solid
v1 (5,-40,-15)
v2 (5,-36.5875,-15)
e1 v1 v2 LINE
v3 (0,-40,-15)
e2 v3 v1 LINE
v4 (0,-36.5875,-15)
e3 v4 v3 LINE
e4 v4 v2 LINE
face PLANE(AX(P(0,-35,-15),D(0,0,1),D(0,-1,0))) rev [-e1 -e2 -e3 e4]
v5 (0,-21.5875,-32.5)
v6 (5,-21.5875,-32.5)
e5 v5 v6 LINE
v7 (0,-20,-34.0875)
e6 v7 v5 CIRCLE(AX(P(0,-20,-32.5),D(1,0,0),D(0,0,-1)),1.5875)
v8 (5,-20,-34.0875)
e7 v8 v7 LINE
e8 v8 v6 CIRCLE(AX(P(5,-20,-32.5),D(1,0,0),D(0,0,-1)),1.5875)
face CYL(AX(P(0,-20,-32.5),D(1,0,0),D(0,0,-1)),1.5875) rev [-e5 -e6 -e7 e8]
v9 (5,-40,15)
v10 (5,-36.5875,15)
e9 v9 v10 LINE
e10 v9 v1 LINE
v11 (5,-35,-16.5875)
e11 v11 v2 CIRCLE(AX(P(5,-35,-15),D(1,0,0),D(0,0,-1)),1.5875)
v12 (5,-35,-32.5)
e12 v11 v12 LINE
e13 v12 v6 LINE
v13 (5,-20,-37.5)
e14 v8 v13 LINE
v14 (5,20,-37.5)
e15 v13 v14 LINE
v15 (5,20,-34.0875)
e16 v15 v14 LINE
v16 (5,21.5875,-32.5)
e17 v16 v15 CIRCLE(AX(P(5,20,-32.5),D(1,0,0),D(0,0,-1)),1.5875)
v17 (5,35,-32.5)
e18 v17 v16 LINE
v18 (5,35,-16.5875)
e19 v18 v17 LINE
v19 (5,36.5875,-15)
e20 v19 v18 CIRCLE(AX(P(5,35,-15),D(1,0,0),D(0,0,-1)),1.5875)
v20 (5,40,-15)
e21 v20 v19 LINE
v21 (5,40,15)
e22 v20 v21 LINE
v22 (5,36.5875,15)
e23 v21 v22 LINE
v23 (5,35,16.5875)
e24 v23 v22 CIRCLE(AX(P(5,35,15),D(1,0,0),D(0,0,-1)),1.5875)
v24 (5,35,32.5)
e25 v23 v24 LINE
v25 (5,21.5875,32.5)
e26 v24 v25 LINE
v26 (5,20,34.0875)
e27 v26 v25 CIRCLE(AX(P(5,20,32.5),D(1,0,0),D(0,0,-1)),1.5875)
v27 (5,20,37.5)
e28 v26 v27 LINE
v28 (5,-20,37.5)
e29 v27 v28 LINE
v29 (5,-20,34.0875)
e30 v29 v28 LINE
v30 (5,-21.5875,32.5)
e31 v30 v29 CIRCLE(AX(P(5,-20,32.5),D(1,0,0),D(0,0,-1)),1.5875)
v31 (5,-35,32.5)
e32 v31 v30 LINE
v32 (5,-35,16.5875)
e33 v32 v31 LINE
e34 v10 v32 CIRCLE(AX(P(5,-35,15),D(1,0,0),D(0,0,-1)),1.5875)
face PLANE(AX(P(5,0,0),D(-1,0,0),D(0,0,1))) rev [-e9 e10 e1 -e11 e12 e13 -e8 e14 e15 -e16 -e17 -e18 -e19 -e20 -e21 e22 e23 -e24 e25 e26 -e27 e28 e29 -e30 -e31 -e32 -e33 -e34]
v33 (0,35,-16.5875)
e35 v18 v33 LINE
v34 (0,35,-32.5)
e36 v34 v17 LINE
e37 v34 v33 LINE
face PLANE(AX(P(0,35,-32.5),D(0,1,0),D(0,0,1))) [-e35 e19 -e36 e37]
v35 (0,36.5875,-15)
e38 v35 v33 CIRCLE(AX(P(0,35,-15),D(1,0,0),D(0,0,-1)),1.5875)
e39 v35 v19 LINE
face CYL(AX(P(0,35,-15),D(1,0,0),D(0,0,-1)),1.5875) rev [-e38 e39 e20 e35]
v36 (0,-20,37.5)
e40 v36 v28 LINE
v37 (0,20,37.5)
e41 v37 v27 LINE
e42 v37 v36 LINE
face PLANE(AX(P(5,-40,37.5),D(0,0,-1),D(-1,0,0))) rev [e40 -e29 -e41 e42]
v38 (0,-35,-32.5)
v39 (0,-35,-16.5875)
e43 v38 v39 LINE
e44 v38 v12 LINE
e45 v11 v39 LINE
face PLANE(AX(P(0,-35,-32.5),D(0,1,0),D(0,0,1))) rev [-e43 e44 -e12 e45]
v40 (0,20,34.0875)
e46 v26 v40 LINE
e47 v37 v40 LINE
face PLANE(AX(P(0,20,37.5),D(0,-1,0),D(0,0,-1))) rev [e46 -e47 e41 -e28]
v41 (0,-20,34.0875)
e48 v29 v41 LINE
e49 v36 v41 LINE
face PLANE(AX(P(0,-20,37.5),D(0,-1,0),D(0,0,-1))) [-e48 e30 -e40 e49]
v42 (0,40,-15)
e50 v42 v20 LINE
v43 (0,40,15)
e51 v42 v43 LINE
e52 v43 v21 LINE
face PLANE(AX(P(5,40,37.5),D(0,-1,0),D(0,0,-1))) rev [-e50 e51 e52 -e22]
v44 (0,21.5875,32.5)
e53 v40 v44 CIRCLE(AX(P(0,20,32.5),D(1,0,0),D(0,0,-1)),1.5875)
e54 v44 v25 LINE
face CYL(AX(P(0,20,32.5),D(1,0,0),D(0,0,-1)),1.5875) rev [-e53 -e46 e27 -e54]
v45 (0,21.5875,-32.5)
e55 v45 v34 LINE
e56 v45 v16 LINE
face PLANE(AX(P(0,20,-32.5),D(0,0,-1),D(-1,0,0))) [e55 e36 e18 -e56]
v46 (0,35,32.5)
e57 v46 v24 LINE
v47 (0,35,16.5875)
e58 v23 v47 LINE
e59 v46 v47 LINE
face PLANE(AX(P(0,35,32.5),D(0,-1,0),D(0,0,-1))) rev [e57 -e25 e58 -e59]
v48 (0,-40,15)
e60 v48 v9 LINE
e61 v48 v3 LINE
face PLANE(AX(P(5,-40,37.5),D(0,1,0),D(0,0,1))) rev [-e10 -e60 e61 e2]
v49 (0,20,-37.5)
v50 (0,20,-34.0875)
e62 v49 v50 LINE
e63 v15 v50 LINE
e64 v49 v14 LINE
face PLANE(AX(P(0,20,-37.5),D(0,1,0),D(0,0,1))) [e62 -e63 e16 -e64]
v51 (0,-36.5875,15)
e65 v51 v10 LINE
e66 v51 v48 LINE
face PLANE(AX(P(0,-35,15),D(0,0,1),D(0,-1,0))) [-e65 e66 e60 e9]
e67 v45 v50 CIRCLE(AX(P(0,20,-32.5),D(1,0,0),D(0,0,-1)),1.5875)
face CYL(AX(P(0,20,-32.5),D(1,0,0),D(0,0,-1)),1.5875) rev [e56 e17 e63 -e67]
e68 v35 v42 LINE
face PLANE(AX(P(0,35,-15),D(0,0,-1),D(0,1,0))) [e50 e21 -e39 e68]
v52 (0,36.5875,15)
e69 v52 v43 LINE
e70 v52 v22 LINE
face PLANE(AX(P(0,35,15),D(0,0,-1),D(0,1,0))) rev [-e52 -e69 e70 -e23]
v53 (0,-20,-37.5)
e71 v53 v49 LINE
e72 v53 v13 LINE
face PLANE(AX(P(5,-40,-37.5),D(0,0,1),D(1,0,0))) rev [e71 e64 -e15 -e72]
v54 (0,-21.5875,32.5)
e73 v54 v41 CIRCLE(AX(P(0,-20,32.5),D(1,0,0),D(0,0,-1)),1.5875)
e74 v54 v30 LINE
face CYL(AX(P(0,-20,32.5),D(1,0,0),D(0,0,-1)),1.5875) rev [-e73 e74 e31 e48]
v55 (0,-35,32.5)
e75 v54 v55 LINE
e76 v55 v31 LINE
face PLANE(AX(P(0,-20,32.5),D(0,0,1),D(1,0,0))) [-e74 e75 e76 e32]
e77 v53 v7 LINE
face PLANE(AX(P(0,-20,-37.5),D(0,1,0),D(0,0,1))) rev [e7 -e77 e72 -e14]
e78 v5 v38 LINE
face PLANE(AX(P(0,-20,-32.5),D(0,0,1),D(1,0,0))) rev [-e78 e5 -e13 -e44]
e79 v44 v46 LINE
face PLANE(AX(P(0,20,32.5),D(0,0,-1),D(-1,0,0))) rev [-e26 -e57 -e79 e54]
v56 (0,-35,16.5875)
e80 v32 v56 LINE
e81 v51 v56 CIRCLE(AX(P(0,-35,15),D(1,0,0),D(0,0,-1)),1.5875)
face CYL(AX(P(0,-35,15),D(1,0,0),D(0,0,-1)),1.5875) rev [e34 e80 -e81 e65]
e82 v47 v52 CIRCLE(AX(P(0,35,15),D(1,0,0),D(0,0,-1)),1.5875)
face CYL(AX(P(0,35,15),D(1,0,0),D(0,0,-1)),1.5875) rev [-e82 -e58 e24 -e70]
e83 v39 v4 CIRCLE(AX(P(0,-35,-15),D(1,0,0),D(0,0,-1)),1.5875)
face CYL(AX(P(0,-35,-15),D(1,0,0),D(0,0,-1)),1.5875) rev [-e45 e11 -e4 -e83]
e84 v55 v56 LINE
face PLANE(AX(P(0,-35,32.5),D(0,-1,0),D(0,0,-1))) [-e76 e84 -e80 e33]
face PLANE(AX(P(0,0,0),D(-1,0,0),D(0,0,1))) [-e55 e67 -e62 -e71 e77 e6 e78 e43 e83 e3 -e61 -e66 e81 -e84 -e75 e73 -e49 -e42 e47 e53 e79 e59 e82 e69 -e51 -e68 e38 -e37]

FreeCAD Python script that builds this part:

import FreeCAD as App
import Part
import Sketcher

V = App.Vector


def add_polygon(sketch, points):
    """Adds a closed chain of lines whose ends are joined by coincident constraints."""
    first, n = sketch.GeometryCount, len(points)
    for a, b in zip(points, points[1:] + points[:1]):
        sketch.addGeometry(Part.LineSegment(App.Vector(*a, 0), App.Vector(*b, 0)), False)
    for i in range(n):
        sketch.addConstraint(Sketcher.Constraint("Coincident", first + i, 2, first + (i + 1) % n, 1))

doc = App.newDocument("Part")
body = doc.addObject("PartDesign::Body", "Body")

sketch1 = body.newObject("Sketcher::SketchObject", "Sketch")
sketch1.AttachmentSupport = (doc.getObject("YZ_Plane"), [""])
sketch1.MapMode = "FlatFace"
add_polygon(sketch1, [(40, 38), (-40, 38), (-40, -38), (40, -38)])
sketch1.addConstraint([
    Sketcher.Constraint("Horizontal", 0),
    Sketcher.Constraint("Vertical", 1),
    Sketcher.Constraint("Horizontal", 2),
    Sketcher.Constraint("Vertical", 3),
    Sketcher.Constraint("Symmetric", 0, 2, 2, 2, -1, 1),
    Sketcher.Constraint("DistanceX", 0, 2, 0, 1, 80.0),
    Sketcher.Constraint("DistanceY", 1, 2, 1, 1, 75.0),
])
pad1 = body.newObject("PartDesign::Pad", "Pad")
pad1.Profile = sketch1
pad1.Length = 5

sketch2 = body.newObject("Sketcher::SketchObject", "Sketch001")
sketch2.AttachmentSupport = (doc.getObject("YZ_Plane"), [""])
sketch2.MapMode = "FlatFace"
sketch2.AttachmentOffset = App.Placement(V(0, 0, -1), App.Rotation())
add_polygon(sketch2, [(20, 38), (20, 32), (35, 32), (35, 15), (40, 15), (40, 38)])
sketch2.addConstraint([
    Sketcher.Constraint("Vertical", 0),
    Sketcher.Constraint("Horizontal", 1),
    Sketcher.Constraint("Vertical", 2),
    Sketcher.Constraint("Horizontal", 3),
    Sketcher.Constraint("Vertical", 4),
    Sketcher.Constraint("Horizontal", 5),
    Sketcher.Constraint("Equal", 3, 0),
    Sketcher.Constraint("DistanceX", 1, 1, 1, 2, 15.0),
    Sketcher.Constraint("DistanceX", 3, 1, 3, 2, 5.0),
    Sketcher.Constraint("DistanceY", 2, 2, 2, 1, 17.5),
    Sketcher.Constraint("DistanceX", -1, 1, 0, 2, 20.0),
    Sketcher.Constraint("DistanceY", -1, 1, 2, 2, 15.0),
])
pocket1 = body.newObject("PartDesign::Pocket", "Pocket")
pocket1.Profile = sketch2
pocket1.Length = 7
pocket1.Reversed = True
doc.recompute()

mirrored = body.newObject("PartDesign::Mirrored", "Mirrored")
mirrored.Originals = [pocket1]
mirrored.MirrorPlane = (doc.getObject("XY_Plane"), [""])
body.Tip = mirrored
doc.recompute()

mirrored2 = body.newObject("PartDesign::Mirrored", "Mirrored001")
mirrored2.Originals = [pocket1]
mirrored2.MirrorPlane = (doc.getObject("XZ_Plane"), [""])
body.Tip = mirrored2

sketch3 = body.newObject("Sketcher::SketchObject", "Sketch002")
sketch3.AttachmentSupport = (doc.getObject("YZ_Plane"), [""])
sketch3.MapMode = "FlatFace"
sketch3.AttachmentOffset = App.Placement(V(0, 0, -1), App.Rotation())
add_polygon(sketch3, [(-20, -38), (-20, -32), (-35, -32), (-35, -15), (-40, -15), (-40, -38)])
sketch3.addConstraint([
    Sketcher.Constraint("Vertical", 0),
    Sketcher.Constraint("Horizontal", 1),
    Sketcher.Constraint("Vertical", 2),
    Sketcher.Constraint("Horizontal", 3),
    Sketcher.Constraint("Vertical", 4),
    Sketcher.Constraint("Horizontal", 5),
    Sketcher.Constraint("Equal", 3, 0),
    Sketcher.Constraint("DistanceX", 1, 2, 1, 1, 15.0),
    Sketcher.Constraint("DistanceX", 3, 2, 3, 1, 5.0),
    Sketcher.Constraint("DistanceY", 2, 1, 2, 2, 17.5),
    Sketcher.Constraint("DistanceX", 0, 2, -1, 1, 20.0),
    Sketcher.Constraint("DistanceY", 2, 2, -1, 1, 15.0),
])
pocket2 = body.newObject("PartDesign::Pocket", "Pocket001")
pocket2.Profile = sketch3
pocket2.Length = 7
pocket2.Reversed = True

sketch4 = body.newObject("Sketcher::SketchObject", "Sketch003")
sketch4.AttachmentSupport = (doc.getObject("YZ_Plane"), [""])
sketch4.MapMode = "FlatFace"
sketch4.AttachmentOffset = App.Placement(V(0, 0, 5), App.Rotation())
sketch4.addGeometry([
    Part.Circle(V(35, 15, 0), V(0, 0, 1), 1.6),
    Part.Circle(V(35, -15, 0), V(0, 0, 1), 1.6),
    Part.Circle(V(20, -32.5, 0), V(0, 0, 1), 1.6),
    Part.Circle(V(-20, -32.5, 0), V(0, 0, 1), 1.6),
    Part.Circle(V(-35, -15, 0), V(0, 0, 1), 1.6),
    Part.Circle(V(-35, 15, 0), V(0, 0, 1), 1.6),
    Part.Circle(V(-20, 32.5, 0), V(0, 0, 1), 1.6),
    Part.Circle(V(20, 32.5, 0), V(0, 0, 1), 1.6),
], False)
sketch4.addConstraint([
    Sketcher.Constraint("Equal", 0, 1),
    Sketcher.Constraint("Equal", 1, 2),
    Sketcher.Constraint("Equal", 2, 3),
    Sketcher.Constraint("Equal", 3, 4),
    Sketcher.Constraint("Equal", 4, 5),
    Sketcher.Constraint("Equal", 5, 6),
    Sketcher.Constraint("Equal", 6, 7),
    Sketcher.Constraint("Symmetric", 0, 3, 4, 3, -1, 1),
    Sketcher.Constraint("Symmetric", 1, 3, 5, 3, -1, 1),
    Sketcher.Constraint("Symmetric", 2, 3, 6, 3, -1, 1),
    Sketcher.Constraint("Symmetric", 3, 3, 7, 3, -1, 1),
    Sketcher.Constraint("Symmetric", 2, 3, 3, 3, -2),
    Sketcher.Constraint("Symmetric", 1, 3, 4, 3, -2),
    Sketcher.Constraint("Diameter", 0, 3.175),
    Sketcher.Constraint("DistanceX", -1, 1, 0, 3, 35.0),
    Sketcher.Constraint("DistanceY", -1, 1, 0, 3, 15.0),
    Sketcher.Constraint("DistanceX", -1, 1, 2, 3, 20.0),
    Sketcher.Constraint("DistanceY", 3, 3, 6, 3, 65.0),
])
pocket3 = body.newObject("PartDesign::Pocket", "Pocket002")
pocket3.Profile = sketch4
pocket3.Type = "ThroughAll"

doc.recompute()
